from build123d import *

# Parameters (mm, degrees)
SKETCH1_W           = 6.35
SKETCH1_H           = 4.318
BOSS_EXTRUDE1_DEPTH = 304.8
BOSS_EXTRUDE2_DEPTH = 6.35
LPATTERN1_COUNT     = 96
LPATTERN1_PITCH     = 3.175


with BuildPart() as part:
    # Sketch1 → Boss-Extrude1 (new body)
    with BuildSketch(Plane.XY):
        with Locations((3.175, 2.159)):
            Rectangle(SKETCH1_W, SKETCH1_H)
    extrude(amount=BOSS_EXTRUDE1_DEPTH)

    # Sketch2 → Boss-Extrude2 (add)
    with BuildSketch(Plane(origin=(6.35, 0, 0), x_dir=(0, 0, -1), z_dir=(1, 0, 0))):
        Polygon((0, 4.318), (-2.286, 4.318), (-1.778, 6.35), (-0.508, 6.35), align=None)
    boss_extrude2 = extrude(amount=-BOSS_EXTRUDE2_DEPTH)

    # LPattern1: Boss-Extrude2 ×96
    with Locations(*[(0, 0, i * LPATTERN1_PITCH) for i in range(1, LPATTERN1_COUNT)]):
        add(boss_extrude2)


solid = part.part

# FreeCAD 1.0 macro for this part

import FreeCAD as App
import Part
import Sketcher
Q = App.Units.Quantity


def add_polygon(sketch, points):
    """Adds a closed chain of lines whose ends are joined by coincident constraints."""
    first, n = sketch.GeometryCount, len(points)
    for a, b in zip(points, points[1:] + points[:1]):
        sketch.addGeometry(Part.LineSegment(App.Vector(*a, 0), App.Vector(*b, 0)), False)
    for i in range(n):
        sketch.addConstraint(Sketcher.Constraint("Coincident", first + i, 2, first + (i + 1) % n, 1))

doc = App.newDocument("Part")
body = doc.addObject("PartDesign::Body", "Body")

# Sketch on XY plane
sketch1 = doc.addObject("Sketcher::SketchObject", "Sketch")
body.addObject(sketch1)
sketch1.AttachmentSupport = (doc.XY_Plane, [""])
sketch1.MapMode = "FlatFace"
add_polygon(sketch1, [(0, 4.3), (0, 0), (6.3, 0), (6.3, 4.3)])  # lines 0-3
sketch1.addConstraint(Sketcher.Constraint("Vertical", 0))
sketch1.addConstraint(Sketcher.Constraint("Horizontal", 1))
sketch1.addConstraint(Sketcher.Constraint("Vertical", 2))
sketch1.addConstraint(Sketcher.Constraint("Horizontal", 3))
sketch1.addConstraint(Sketcher.Constraint("Coincident", 0, 2, -1, 1))
sketch1.addConstraint(Sketcher.Constraint("DistanceX", 1, 1, 1, 2, Q("0.25 in")))
sketch1.addConstraint(Sketcher.Constraint("DistanceY", 0, 2, 0, 1, Q("0.17 in")))
pad1 = doc.addObject("PartDesign::Pad", "Pad")
body.addObject(pad1)
pad1.Profile = sketch1
pad1.Length = Q("12 in")

# Sketch on YZ plane
sketch2 = doc.addObject("Sketcher::SketchObject", "Sketch001")
body.addObject(sketch2)
sketch2.AttachmentSupport = (doc.YZ_Plane, [""])
sketch2.MapMode = "FlatFace"
sketch2.AttachmentOffset = App.Placement(App.Vector(0, 0, 0.25 * 25.4), App.Rotation())
add_polygon(sketch2, [(4.3, 2.3), (4.3, 0), (6.3, 0.5), (6.3, 1.8)])  # lines 0-3
sketch2.addConstraint(Sketcher.Constraint("Vertical", 0))
sketch2.addConstraint(Sketcher.Constraint("Vertical", 2))
sketch2.addConstraint(Sketcher.Constraint("PointOnObject", 0, 2, -1))
sketch2.addConstraint(Sketcher.Constraint("Equal", 1, 3))
sketch2.addConstraint(Sketcher.Constraint("DistanceY", 0, 2, 0, 1, Q("0.09 in")))
sketch2.addConstraint(Sketcher.Constraint("DistanceY", 2, 1, 2, 2, Q("0.05 in")))
sketch2.addConstraint(Sketcher.Constraint("DistanceX", -1, 1, 0, 2, Q("0.17 in")))
sketch2.addConstraint(Sketcher.Constraint("DistanceX", -1, 1, 1, 2, Q("0.25 in")))
pad2 = doc.addObject("PartDesign::Pad", "Pad001")
body.addObject(pad2)
pad2.Profile = sketch2
pad2.Length = Q("0.25 in")
pad2.Reversed = True
doc.recompute()

linearpattern = doc.addObject("PartDesign::LinearPattern", "LinearPattern")
body.addObject(linearpattern)
linearpattern.Originals = [pad2]
linearpattern.Direction = (doc.Z_Axis, [""])
linearpattern.Mode = "offset"
linearpattern.Offset = Q("0.125 in")
linearpattern.Occurrences = 96
body.Tip = linearpattern

doc.recompute()
